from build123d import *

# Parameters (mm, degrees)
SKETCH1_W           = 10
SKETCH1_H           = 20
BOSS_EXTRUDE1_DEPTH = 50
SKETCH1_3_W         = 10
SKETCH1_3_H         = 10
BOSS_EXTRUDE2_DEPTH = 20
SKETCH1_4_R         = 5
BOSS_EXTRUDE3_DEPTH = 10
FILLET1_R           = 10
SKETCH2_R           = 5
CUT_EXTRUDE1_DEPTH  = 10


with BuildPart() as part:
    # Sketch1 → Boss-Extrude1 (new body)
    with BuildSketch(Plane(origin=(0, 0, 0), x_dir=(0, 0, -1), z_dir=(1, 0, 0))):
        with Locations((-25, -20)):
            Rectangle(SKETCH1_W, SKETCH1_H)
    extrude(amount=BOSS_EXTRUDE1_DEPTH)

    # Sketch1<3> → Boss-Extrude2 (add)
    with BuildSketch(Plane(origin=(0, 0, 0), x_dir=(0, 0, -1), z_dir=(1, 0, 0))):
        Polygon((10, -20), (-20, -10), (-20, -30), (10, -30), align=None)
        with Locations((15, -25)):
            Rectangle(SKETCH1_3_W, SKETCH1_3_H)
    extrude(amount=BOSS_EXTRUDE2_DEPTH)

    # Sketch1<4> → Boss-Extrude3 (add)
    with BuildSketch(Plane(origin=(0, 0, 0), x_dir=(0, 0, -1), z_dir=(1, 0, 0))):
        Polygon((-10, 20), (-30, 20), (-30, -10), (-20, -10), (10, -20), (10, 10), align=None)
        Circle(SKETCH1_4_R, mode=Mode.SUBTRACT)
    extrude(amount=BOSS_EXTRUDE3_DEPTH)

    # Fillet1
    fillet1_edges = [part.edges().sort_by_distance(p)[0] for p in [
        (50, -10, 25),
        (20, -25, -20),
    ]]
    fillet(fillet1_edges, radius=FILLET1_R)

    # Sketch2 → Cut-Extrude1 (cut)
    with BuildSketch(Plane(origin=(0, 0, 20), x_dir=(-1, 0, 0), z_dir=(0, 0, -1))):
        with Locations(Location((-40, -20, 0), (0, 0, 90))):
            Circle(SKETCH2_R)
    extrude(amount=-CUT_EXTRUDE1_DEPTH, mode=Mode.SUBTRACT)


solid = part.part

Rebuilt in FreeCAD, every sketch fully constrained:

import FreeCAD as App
import Part
import Sketcher

V = App.Vector
Q = App.Units.Quantity


def edges_at(feature, points):
    """Names of the edges that pass closest to the given points."""
    edges = feature.Shape.Edges
    near = lambda p: min(range(len(edges)), key=lambda i: edges[i].distToShape(Part.Vertex(*p))[0])
    return sorted({f"Edge{near(p) + 1}" for p in points})


def add_polygon(sketch, points):
    """Adds a closed chain of lines whose ends are joined by coincident constraints."""
    first, n = sketch.GeometryCount, len(points)
    for a, b in zip(points, points[1:] + points[:1]):
        sketch.addGeometry(Part.LineSegment(App.Vector(*a, 0), App.Vector(*b, 0)), False)
    for i in range(n):
        sketch.addConstraint(Sketcher.Constraint("Coincident", first + i, 2, first + (i + 1) % n, 1))

doc = App.newDocument("Part")
body = doc.addObject("PartDesign::Body", "Body")

# Sketch on YZ plane
sketch1 = body.newObject("Sketcher::SketchObject", "Sketch")
sketch1.AttachmentSupport = (doc.getObject("YZ_Plane"), [""])
sketch1.MapMode = "FlatFace"
add_polygon(sketch1, [(-10, 30), (-30, 30), (-30, 20), (-10, 20)])  # lines 0-3
sketch1.addConstraint(Sketcher.Constraint("Horizontal", 0))
sketch1.addConstraint(Sketcher.Constraint("Vertical", 1))
sketch1.addConstraint(Sketcher.Constraint("Horizontal", 2))
sketch1.addConstraint(Sketcher.Constraint("Vertical", 3))
sketch1.addConstraint(Sketcher.Constraint("DistanceX", 0, 2, 0, 1, Q("20 mm")))
sketch1.addConstraint(Sketcher.Constraint("DistanceY", 1, 2, 1, 1, Q("10 mm")))
sketch1.addConstraint(Sketcher.Constraint("DistanceX", 0, 2, -1, 1, Q("30 mm")))
sketch1.addConstraint(Sketcher.Constraint("DistanceY", -1, 1, 0, 2, Q("30 mm")))
pad1 = body.newObject("PartDesign::Pad", "Pad")
pad1.Profile = sketch1
pad1.Length = 50

# Sketch on YZ plane
sketch2 = body.newObject("Sketcher::SketchObject", "Sketch001")
sketch2.AttachmentSupport = (doc.getObject("YZ_Plane"), [""])
sketch2.MapMode = "FlatFace"
add_polygon(sketch2, [(-20, -10), (-10, 20), (-30, 20), (-30, -20), (-20, -20)])  # lines 0-4
sketch2.addConstraint(Sketcher.Constraint("Horizontal", 1))
sketch2.addConstraint(Sketcher.Constraint("Vertical", 2))
sketch2.addConstraint(Sketcher.Constraint("Horizontal", 3))
sketch2.addConstraint(Sketcher.Constraint("Vertical", 4))
sketch2.addConstraint(Sketcher.Constraint("Equal", 3, 4))
sketch2.addConstraint(Sketcher.Constraint("DistanceX", 1, 2, 1, 1, Q("20 mm")))
sketch2.addConstraint(Sketcher.Constraint("DistanceX", 3, 1, 3, 2, Q("10 mm")))
sketch2.addConstraint(Sketcher.Constraint("DistanceY", 2, 2, 2, 1, Q("40 mm")))
sketch2.addConstraint(Sketcher.Constraint("DistanceX", 0, 2, -1, 1, Q("10 mm")))
sketch2.addConstraint(Sketcher.Constraint("DistanceY", -1, 1, 0, 2, Q("20 mm")))
pad2 = body.newObject("PartDesign::Pad", "Pad001")
pad2.Profile = sketch2
pad2.Length = 20

# Sketch on YZ plane
sketch3 = body.newObject("Sketcher::SketchObject", "Sketch002")
sketch3.AttachmentSupport = (doc.getObject("YZ_Plane"), [""])
sketch3.MapMode = "FlatFace"
add_polygon(sketch3, [(20, 10), (20, 30), (-10, 30), (-10, 20), (-20, -10), (10, -10)])  # lines 0-5
sketch3.addGeometry(Part.Circle(V(0, 0, 0), V(0, 0, 1), 5), False)  # 6
sketch3.addConstraint(Sketcher.Constraint("Vertical", 0))
sketch3.addConstraint(Sketcher.Constraint("Horizontal", 1))
sketch3.addConstraint(Sketcher.Constraint("Vertical", 2))
sketch3.addConstraint(Sketcher.Constraint("Horizontal", 4))
sketch3.addConstraint(Sketcher.Constraint("Coincident", 6, 3, -1, 1))
sketch3.addConstraint(Sketcher.Constraint("Symmetric", 3, 2, 5, 2, -1, 1))
sketch3.addConstraint(Sketcher.Constraint("Equal", 1, 4))
sketch3.addConstraint(Sketcher.Constraint("Diameter", 6, Q("10 mm")))
sketch3.addConstraint(Sketcher.Constraint("DistanceX", 1, 2, 1, 1, Q("30 mm")))
sketch3.addConstraint(Sketcher.Constraint("DistanceY", 0, 1, 0, 2, Q("20 mm")))
sketch3.addConstraint(Sketcher.Constraint("DistanceY", 2, 2, 2, 1, Q("10 mm")))
sketch3.addConstraint(Sketcher.Constraint("DistanceX", -1, 1, 0, 2, Q("20 mm")))
sketch3.addConstraint(Sketcher.Constraint("DistanceY", -1, 1, 0, 2, Q("30 mm")))
pad3 = body.newObject("PartDesign::Pad", "Pad002")
pad3.Profile = sketch3
pad3.Length = 10
doc.recompute()

fillet = body.newObject("PartDesign::Fillet", "Fillet")
fillet.Base = (pad3, edges_at(pad3, [(50, -10, 25), (20, -25, -20)]))
fillet.Radius = 10

# Sketch on XY plane
sketch4 = body.newObject("Sketcher::SketchObject", "Sketch003")
sketch4.AttachmentSupport = (doc.getObject("XY_Plane"), [""])
sketch4.MapMode = "FlatFace"
sketch4.AttachmentOffset = App.Placement(V(0, 0, 20), App.Rotation())
sketch4.addGeometry(Part.Circle(V(40, -20, 0), V(0, 0, 1), 5), False)
sketch4.addConstraint(Sketcher.Constraint("Diameter", 0, Q("10 mm")))
sketch4.addConstraint(Sketcher.Constraint("DistanceX", -1, 1, 0, 3, Q("40 mm")))
sketch4.addConstraint(Sketcher.Constraint("DistanceY", 0, 3, -1, 1, Q("20 mm")))
pocket1 = body.newObject("PartDesign::Pocket", "Pocket")
pocket1.Profile = sketch4
pocket1.Length = 10
pocket1.Reversed = True

doc.recompute()
